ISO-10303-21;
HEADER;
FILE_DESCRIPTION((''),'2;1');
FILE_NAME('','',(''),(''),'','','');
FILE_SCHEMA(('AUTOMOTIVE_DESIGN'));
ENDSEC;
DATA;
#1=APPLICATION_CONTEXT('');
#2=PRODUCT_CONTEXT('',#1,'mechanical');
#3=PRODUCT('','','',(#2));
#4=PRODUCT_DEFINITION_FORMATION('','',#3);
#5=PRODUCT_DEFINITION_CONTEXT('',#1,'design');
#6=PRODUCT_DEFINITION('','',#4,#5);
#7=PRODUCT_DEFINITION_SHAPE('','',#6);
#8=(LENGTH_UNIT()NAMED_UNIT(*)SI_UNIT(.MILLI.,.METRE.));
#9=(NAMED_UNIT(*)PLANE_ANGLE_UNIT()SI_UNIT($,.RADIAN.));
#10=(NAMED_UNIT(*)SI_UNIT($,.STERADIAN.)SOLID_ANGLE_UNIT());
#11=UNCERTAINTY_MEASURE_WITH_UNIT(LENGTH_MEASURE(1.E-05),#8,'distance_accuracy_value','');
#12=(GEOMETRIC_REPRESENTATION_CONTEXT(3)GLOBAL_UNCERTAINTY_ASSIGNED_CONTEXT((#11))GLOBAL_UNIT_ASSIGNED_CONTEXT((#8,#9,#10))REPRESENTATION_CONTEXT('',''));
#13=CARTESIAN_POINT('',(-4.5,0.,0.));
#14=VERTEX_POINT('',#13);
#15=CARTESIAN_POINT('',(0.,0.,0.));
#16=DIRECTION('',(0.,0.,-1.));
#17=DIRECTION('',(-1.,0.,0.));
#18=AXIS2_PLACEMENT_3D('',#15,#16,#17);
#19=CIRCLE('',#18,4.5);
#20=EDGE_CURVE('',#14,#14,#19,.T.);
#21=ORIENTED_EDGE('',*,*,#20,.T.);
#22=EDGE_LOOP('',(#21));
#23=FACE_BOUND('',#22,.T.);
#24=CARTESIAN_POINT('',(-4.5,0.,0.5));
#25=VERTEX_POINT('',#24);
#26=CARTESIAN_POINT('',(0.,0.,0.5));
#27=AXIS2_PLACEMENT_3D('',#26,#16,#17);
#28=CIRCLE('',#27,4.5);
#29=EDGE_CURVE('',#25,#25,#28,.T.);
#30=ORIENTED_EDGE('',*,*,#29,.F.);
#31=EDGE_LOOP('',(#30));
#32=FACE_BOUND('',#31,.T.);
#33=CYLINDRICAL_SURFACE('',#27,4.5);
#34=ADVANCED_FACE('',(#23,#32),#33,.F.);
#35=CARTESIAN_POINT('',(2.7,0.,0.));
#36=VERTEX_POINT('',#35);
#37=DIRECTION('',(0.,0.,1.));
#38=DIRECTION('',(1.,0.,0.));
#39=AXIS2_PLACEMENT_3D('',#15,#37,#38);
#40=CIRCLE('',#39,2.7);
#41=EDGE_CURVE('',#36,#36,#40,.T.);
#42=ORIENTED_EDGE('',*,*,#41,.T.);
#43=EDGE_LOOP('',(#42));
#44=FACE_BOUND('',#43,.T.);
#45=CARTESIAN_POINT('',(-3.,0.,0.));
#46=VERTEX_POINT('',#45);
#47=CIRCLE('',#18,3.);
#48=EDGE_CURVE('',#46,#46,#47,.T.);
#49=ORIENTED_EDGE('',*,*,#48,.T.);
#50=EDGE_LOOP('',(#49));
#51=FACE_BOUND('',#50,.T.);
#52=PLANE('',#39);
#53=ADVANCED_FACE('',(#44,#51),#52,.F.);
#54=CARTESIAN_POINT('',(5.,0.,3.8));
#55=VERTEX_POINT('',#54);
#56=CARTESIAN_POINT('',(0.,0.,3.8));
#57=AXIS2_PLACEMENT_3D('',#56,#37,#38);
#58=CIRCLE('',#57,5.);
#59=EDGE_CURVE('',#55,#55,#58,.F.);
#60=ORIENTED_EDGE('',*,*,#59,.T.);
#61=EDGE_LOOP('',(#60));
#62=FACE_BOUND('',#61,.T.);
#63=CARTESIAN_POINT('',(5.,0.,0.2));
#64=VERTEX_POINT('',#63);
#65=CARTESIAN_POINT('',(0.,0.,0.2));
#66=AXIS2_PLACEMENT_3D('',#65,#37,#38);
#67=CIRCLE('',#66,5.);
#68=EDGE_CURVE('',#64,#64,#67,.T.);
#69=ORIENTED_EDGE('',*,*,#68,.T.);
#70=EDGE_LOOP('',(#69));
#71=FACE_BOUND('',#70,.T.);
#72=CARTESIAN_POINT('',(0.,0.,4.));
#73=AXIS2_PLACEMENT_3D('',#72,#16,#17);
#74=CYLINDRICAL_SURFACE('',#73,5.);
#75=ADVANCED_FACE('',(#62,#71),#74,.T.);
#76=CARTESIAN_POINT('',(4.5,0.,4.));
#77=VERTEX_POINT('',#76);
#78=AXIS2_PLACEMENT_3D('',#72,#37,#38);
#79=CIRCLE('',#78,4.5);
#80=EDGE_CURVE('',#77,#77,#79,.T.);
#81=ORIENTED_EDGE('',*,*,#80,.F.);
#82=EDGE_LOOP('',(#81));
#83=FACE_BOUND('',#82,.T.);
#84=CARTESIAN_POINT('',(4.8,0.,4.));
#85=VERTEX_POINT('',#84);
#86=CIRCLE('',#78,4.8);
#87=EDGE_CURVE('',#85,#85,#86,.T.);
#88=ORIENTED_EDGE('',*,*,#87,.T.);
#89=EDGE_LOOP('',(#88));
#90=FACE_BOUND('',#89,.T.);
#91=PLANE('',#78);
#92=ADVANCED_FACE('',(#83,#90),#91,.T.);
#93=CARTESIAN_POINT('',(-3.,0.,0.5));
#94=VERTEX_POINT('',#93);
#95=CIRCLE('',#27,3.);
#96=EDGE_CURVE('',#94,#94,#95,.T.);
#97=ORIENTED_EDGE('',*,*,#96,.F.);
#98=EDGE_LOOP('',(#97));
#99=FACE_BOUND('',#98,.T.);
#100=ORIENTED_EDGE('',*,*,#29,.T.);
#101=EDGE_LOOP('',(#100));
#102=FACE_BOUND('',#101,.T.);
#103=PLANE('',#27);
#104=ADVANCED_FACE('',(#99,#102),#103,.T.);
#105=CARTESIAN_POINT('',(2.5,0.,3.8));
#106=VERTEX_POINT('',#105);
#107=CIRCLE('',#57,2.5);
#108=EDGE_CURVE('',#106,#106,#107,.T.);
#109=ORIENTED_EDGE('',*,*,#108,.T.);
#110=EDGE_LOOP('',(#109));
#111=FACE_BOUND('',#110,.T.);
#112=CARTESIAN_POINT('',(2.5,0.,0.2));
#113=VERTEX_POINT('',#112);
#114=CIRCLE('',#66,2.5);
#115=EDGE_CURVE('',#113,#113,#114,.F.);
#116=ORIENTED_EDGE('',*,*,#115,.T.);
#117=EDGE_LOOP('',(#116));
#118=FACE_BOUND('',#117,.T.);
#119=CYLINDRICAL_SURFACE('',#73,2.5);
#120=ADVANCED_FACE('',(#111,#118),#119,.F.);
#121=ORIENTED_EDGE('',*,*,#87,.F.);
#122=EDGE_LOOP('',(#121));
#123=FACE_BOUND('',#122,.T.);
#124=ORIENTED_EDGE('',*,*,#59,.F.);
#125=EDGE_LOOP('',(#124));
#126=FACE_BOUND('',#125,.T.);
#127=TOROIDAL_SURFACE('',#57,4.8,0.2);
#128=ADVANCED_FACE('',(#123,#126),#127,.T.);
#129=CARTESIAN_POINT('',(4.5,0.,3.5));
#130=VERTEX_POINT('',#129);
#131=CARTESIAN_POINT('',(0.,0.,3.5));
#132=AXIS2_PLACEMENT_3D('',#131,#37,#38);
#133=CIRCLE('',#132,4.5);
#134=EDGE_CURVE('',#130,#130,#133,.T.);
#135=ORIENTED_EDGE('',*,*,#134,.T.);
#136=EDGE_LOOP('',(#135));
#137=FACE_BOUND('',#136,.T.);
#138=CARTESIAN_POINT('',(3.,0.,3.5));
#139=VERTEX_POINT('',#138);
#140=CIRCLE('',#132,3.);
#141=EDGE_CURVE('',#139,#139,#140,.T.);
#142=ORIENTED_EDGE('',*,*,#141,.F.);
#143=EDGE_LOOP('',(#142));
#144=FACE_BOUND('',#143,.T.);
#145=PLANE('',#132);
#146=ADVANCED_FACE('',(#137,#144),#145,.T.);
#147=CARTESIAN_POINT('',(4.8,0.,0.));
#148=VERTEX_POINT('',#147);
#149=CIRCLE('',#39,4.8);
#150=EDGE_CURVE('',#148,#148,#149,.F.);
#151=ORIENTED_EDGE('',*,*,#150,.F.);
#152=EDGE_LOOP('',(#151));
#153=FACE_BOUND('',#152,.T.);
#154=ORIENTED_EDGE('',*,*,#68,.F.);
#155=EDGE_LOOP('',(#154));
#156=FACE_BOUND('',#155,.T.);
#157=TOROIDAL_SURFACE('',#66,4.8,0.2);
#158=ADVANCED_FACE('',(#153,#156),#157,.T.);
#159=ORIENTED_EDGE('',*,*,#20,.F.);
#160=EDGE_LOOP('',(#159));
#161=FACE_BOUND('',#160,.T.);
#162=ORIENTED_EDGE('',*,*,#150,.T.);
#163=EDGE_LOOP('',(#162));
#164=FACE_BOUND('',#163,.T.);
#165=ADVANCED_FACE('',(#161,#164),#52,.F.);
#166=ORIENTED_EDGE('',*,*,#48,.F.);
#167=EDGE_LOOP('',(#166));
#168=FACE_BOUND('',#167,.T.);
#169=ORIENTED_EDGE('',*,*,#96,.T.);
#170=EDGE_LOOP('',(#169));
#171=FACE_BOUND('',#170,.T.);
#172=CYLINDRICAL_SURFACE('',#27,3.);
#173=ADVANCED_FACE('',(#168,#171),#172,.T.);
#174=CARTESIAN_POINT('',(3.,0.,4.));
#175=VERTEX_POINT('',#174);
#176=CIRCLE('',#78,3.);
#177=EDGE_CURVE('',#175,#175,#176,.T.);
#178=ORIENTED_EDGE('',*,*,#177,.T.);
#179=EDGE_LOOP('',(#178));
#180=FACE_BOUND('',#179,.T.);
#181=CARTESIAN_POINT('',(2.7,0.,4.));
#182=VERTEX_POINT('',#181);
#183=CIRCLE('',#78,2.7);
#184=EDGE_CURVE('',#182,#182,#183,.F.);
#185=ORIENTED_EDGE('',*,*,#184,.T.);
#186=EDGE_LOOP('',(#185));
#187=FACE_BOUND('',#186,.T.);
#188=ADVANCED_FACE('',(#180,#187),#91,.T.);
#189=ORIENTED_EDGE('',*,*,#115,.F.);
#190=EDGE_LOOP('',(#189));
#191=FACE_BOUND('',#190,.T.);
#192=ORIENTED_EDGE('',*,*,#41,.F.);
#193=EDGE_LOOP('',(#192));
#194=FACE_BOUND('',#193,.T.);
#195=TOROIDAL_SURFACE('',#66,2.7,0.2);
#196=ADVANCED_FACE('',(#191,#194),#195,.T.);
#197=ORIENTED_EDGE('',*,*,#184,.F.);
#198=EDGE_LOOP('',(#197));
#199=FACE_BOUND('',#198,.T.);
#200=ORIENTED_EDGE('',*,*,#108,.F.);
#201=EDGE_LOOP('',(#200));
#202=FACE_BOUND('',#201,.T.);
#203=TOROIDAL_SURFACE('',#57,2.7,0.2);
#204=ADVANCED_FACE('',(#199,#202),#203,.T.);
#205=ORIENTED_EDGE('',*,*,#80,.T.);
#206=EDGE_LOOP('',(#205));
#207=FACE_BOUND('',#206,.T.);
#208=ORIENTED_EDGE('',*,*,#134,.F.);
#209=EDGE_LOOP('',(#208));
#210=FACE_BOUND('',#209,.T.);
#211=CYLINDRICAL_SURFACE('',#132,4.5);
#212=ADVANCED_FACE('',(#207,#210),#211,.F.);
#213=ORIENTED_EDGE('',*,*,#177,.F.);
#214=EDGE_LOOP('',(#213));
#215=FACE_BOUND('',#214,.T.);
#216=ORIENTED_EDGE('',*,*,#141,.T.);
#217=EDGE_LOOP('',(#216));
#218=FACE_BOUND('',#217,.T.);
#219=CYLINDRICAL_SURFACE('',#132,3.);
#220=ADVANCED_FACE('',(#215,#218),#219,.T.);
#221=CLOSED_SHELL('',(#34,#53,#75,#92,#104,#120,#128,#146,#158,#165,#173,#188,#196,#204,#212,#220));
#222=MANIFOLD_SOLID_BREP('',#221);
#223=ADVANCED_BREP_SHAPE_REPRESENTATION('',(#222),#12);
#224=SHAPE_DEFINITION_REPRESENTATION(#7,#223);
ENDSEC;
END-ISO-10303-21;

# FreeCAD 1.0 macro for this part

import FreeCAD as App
import Part
import Sketcher
from FreeCAD import Vector


def edges_at(feature, points):
    """Names of the edges that pass closest to the given points."""
    edges = feature.Shape.Edges
    near = lambda p: min(range(len(edges)), key=lambda i: edges[i].distToShape(Part.Vertex(*p))[0])
    return sorted({f"Edge{near(p) + 1}" for p in points})

doc = App.newDocument("Part")
params = doc.addObject("Spreadsheet::Sheet", "Params")
for row, (alias, value) in enumerate([
    ("sketch1_diameter", "10 mm"),
    ("sketch1_diameter2", "5 mm"),
    ("pad1_length", "4 mm"),
    ("fillet_radius", "0.2 mm"),
    ("sketch2_diameter", "9 mm"),
    ("sketch2_diameter2", "6 mm"),
    ("pocket1_length", "0.5 mm"),
    ("sketch3_diameter", "9 mm"),
    ("sketch3_diameter2", "6 mm"),
    ("pocket2_length", "0.5 mm"),
], start=1):
    params.set(f"A{row}", alias)
    params.set(f"B{row}", "=" + value)
    params.setAlias(f"B{row}", alias)

body = doc.addObject("PartDesign::Body", "Body")

# Sketch on XY plane
sketch1 = body.newObject("Sketcher::SketchObject", "Sketch")
sketch1.AttachmentSupport = (doc.getObject("XY_Plane"), [""])
sketch1.MapMode = "FlatFace"
sketch1.addGeometry([
    Part.Circle(Vector(0, 0, 0), Vector(0, 0, 1), 5),
    Part.Circle(Vector(0, 0, 0), Vector(0, 0, 1), 2.5),
], False)
sketch1.addConstraint([
    Sketcher.Constraint("Coincident", 0, 3, -1, 1),
    Sketcher.Constraint("Coincident", 1, 3, -1, 1),
    Sketcher.Constraint("Diameter", 0, 10.0),
    Sketcher.Constraint("Diameter", 1, 5.0),
])
sketch1.setExpression("Constraints[2]", "Params.sketch1_diameter")
sketch1.setExpression("Constraints[3]", "Params.sketch1_diameter2")
pad1 = body.newObject("PartDesign::Pad", "Pad")
pad1.Profile = sketch1
pad1.setExpression("Length", "Params.pad1_length")
doc.recompute()

fillet = body.newObject("PartDesign::Fillet", "Fillet")
fillet.Base = (pad1, edges_at(pad1, [
    (-5, 0, 0),
    (-5, 0, 4),
    (-2.5, 0, 0),
    (-2.5, 0, 4),
]))
fillet.setExpression("Radius", "Params.fillet_radius")

# Sketch on XY plane
sketch2 = body.newObject("Sketcher::SketchObject", "Sketch001")
sketch2.AttachmentSupport = (doc.getObject("XY_Plane"), [""])
sketch2.MapMode = "FlatFace"
sketch2.addGeometry([
    Part.Circle(Vector(0, 0, 0), Vector(0, 0, 1), 4.5),
    Part.Circle(Vector(0, 0, 0), Vector(0, 0, 1), 3),
], False)
sketch2.addConstraint([
    Sketcher.Constraint("Coincident", 0, 3, -1, 1),
    Sketcher.Constraint("Coincident", 1, 3, -1, 1),
    Sketcher.Constraint("Diameter", 0, 9.0),
    Sketcher.Constraint("Diameter", 1, 6.0),
])
sketch2.setExpression("Constraints[2]", "Params.sketch2_diameter")
sketch2.setExpression("Constraints[3]", "Params.sketch2_diameter2")
pocket1 = body.newObject("PartDesign::Pocket", "Pocket")
pocket1.Profile = sketch2
pocket1.setExpression("Length", "Params.pocket1_length")
pocket1.Reversed = True

# Sketch on XY plane
sketch3 = body.newObject("Sketcher::SketchObject", "Sketch002")
sketch3.AttachmentSupport = (doc.getObject("XY_Plane"), [""])
sketch3.MapMode = "FlatFace"
sketch3.AttachmentOffset = App.Placement(Vector(0, 0, 3.5), App.Rotation())
sketch3.addGeometry([
    Part.Circle(Vector(0, 0, 0), Vector(0, 0, 1), 4.5),
    Part.Circle(Vector(0, 0, 0), Vector(0, 0, 1), 3),
], False)
sketch3.addConstraint([
    Sketcher.Constraint("Coincident", 0, 3, -1, 1),
    Sketcher.Constraint("Coincident", 1, 3, -1, 1),
    Sketcher.Constraint("Diameter", 0, 9.0),
    Sketcher.Constraint("Diameter", 1, 6.0),
])
sketch3.setExpression("Constraints[2]", "Params.sketch3_diameter")
sketch3.setExpression("Constraints[3]", "Params.sketch3_diameter2")
pocket2 = body.newObject("PartDesign::Pocket", "Pocket001")
pocket2.Profile = sketch3
pocket2.setExpression("Length", "Params.pocket2_length")
pocket2.Reversed = True

doc.recompute()
